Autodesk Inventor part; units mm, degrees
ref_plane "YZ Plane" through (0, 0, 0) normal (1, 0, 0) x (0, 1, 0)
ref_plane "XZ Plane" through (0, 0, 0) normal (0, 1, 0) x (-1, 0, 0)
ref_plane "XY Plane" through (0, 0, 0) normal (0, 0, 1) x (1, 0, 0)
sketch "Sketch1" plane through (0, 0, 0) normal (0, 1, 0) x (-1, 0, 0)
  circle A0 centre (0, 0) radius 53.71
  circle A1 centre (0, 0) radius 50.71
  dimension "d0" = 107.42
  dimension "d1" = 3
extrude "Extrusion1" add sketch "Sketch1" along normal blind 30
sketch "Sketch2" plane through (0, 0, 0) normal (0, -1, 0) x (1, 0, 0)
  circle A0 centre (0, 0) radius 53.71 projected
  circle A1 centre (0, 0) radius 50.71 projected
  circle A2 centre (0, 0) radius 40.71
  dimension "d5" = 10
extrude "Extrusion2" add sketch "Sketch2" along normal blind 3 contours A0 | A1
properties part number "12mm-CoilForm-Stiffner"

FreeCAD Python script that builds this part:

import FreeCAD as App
import Part
import Sketcher
Q = App.Units.Quantity

doc = App.newDocument("Part")
params = doc.addObject("Spreadsheet::Sheet", "Params")
for row, (alias, value) in enumerate([
    ("sketch1_diameter", "107.42 mm"),
    ("sketch1_diameter2", "101.42 mm"),
    ("pad1_length", "30 mm"),
    ("sketch2_diameter", "107.42 mm"),
    ("sketch2_diameter2", "81.42 mm"),
    ("pad2_length", "3 mm"),
], start=1):
    params.set(f"A{row}", alias)
    params.set(f"B{row}", "=" + value)
    params.setAlias(f"B{row}", alias)

body = doc.addObject("PartDesign::Body", "Body")

# Sketch on XZ plane
sketch1 = body.newObject("Sketcher::SketchObject", "Sketch")
sketch1.AttachmentSupport = (doc.getObject("XZ_Plane"), [""])
sketch1.MapMode = "FlatFace"
sketch1.addGeometry([
    Part.Circle(App.Vector(0, 0, 0), App.Vector(0, 0, 1), 54),
    Part.Circle(App.Vector(0, 0, 0), App.Vector(0, 0, 1), 51),
], False)
sketch1.addConstraint([
    Sketcher.Constraint("Coincident", 0, 3, -1, 1),
    Sketcher.Constraint("Coincident", 1, 3, -1, 1),
    Sketcher.Constraint("Diameter", 0, Q("107.42 mm")),
    Sketcher.Constraint("Diameter", 1, Q("101.42 mm")),
])
sketch1.setExpression("Constraints[2]", "Params.sketch1_diameter")
sketch1.setExpression("Constraints[3]", "Params.sketch1_diameter2")
pad1 = body.newObject("PartDesign::Pad", "Pad")
pad1.Profile = sketch1
pad1.setExpression("Length", "Params.pad1_length")
pad1.Reversed = True

# Sketch on XZ plane
sketch2 = body.newObject("Sketcher::SketchObject", "Sketch001")
sketch2.AttachmentSupport = (doc.getObject("XZ_Plane"), [""])
sketch2.MapMode = "FlatFace"
sketch2.addGeometry([
    Part.Circle(App.Vector(0, 0, 0), App.Vector(0, 0, 1), 54),
    Part.Circle(App.Vector(0, 0, 0), App.Vector(0, 0, 1), 41),
], False)
sketch2.addConstraint([
    Sketcher.Constraint("Coincident", 0, 3, -1, 1),
    Sketcher.Constraint("Coincident", 1, 3, -1, 1),
    Sketcher.Constraint("Diameter", 0, Q("107.42 mm")),
    Sketcher.Constraint("Diameter", 1, Q("81.42 mm")),
])
sketch2.setExpression("Constraints[2]", "Params.sketch2_diameter")
sketch2.setExpression("Constraints[3]", "Params.sketch2_diameter2")
pad2 = body.newObject("PartDesign::Pad", "Pad001")
pad2.Profile = sketch2
pad2.setExpression("Length", "Params.pad2_length")

doc.recompute()
